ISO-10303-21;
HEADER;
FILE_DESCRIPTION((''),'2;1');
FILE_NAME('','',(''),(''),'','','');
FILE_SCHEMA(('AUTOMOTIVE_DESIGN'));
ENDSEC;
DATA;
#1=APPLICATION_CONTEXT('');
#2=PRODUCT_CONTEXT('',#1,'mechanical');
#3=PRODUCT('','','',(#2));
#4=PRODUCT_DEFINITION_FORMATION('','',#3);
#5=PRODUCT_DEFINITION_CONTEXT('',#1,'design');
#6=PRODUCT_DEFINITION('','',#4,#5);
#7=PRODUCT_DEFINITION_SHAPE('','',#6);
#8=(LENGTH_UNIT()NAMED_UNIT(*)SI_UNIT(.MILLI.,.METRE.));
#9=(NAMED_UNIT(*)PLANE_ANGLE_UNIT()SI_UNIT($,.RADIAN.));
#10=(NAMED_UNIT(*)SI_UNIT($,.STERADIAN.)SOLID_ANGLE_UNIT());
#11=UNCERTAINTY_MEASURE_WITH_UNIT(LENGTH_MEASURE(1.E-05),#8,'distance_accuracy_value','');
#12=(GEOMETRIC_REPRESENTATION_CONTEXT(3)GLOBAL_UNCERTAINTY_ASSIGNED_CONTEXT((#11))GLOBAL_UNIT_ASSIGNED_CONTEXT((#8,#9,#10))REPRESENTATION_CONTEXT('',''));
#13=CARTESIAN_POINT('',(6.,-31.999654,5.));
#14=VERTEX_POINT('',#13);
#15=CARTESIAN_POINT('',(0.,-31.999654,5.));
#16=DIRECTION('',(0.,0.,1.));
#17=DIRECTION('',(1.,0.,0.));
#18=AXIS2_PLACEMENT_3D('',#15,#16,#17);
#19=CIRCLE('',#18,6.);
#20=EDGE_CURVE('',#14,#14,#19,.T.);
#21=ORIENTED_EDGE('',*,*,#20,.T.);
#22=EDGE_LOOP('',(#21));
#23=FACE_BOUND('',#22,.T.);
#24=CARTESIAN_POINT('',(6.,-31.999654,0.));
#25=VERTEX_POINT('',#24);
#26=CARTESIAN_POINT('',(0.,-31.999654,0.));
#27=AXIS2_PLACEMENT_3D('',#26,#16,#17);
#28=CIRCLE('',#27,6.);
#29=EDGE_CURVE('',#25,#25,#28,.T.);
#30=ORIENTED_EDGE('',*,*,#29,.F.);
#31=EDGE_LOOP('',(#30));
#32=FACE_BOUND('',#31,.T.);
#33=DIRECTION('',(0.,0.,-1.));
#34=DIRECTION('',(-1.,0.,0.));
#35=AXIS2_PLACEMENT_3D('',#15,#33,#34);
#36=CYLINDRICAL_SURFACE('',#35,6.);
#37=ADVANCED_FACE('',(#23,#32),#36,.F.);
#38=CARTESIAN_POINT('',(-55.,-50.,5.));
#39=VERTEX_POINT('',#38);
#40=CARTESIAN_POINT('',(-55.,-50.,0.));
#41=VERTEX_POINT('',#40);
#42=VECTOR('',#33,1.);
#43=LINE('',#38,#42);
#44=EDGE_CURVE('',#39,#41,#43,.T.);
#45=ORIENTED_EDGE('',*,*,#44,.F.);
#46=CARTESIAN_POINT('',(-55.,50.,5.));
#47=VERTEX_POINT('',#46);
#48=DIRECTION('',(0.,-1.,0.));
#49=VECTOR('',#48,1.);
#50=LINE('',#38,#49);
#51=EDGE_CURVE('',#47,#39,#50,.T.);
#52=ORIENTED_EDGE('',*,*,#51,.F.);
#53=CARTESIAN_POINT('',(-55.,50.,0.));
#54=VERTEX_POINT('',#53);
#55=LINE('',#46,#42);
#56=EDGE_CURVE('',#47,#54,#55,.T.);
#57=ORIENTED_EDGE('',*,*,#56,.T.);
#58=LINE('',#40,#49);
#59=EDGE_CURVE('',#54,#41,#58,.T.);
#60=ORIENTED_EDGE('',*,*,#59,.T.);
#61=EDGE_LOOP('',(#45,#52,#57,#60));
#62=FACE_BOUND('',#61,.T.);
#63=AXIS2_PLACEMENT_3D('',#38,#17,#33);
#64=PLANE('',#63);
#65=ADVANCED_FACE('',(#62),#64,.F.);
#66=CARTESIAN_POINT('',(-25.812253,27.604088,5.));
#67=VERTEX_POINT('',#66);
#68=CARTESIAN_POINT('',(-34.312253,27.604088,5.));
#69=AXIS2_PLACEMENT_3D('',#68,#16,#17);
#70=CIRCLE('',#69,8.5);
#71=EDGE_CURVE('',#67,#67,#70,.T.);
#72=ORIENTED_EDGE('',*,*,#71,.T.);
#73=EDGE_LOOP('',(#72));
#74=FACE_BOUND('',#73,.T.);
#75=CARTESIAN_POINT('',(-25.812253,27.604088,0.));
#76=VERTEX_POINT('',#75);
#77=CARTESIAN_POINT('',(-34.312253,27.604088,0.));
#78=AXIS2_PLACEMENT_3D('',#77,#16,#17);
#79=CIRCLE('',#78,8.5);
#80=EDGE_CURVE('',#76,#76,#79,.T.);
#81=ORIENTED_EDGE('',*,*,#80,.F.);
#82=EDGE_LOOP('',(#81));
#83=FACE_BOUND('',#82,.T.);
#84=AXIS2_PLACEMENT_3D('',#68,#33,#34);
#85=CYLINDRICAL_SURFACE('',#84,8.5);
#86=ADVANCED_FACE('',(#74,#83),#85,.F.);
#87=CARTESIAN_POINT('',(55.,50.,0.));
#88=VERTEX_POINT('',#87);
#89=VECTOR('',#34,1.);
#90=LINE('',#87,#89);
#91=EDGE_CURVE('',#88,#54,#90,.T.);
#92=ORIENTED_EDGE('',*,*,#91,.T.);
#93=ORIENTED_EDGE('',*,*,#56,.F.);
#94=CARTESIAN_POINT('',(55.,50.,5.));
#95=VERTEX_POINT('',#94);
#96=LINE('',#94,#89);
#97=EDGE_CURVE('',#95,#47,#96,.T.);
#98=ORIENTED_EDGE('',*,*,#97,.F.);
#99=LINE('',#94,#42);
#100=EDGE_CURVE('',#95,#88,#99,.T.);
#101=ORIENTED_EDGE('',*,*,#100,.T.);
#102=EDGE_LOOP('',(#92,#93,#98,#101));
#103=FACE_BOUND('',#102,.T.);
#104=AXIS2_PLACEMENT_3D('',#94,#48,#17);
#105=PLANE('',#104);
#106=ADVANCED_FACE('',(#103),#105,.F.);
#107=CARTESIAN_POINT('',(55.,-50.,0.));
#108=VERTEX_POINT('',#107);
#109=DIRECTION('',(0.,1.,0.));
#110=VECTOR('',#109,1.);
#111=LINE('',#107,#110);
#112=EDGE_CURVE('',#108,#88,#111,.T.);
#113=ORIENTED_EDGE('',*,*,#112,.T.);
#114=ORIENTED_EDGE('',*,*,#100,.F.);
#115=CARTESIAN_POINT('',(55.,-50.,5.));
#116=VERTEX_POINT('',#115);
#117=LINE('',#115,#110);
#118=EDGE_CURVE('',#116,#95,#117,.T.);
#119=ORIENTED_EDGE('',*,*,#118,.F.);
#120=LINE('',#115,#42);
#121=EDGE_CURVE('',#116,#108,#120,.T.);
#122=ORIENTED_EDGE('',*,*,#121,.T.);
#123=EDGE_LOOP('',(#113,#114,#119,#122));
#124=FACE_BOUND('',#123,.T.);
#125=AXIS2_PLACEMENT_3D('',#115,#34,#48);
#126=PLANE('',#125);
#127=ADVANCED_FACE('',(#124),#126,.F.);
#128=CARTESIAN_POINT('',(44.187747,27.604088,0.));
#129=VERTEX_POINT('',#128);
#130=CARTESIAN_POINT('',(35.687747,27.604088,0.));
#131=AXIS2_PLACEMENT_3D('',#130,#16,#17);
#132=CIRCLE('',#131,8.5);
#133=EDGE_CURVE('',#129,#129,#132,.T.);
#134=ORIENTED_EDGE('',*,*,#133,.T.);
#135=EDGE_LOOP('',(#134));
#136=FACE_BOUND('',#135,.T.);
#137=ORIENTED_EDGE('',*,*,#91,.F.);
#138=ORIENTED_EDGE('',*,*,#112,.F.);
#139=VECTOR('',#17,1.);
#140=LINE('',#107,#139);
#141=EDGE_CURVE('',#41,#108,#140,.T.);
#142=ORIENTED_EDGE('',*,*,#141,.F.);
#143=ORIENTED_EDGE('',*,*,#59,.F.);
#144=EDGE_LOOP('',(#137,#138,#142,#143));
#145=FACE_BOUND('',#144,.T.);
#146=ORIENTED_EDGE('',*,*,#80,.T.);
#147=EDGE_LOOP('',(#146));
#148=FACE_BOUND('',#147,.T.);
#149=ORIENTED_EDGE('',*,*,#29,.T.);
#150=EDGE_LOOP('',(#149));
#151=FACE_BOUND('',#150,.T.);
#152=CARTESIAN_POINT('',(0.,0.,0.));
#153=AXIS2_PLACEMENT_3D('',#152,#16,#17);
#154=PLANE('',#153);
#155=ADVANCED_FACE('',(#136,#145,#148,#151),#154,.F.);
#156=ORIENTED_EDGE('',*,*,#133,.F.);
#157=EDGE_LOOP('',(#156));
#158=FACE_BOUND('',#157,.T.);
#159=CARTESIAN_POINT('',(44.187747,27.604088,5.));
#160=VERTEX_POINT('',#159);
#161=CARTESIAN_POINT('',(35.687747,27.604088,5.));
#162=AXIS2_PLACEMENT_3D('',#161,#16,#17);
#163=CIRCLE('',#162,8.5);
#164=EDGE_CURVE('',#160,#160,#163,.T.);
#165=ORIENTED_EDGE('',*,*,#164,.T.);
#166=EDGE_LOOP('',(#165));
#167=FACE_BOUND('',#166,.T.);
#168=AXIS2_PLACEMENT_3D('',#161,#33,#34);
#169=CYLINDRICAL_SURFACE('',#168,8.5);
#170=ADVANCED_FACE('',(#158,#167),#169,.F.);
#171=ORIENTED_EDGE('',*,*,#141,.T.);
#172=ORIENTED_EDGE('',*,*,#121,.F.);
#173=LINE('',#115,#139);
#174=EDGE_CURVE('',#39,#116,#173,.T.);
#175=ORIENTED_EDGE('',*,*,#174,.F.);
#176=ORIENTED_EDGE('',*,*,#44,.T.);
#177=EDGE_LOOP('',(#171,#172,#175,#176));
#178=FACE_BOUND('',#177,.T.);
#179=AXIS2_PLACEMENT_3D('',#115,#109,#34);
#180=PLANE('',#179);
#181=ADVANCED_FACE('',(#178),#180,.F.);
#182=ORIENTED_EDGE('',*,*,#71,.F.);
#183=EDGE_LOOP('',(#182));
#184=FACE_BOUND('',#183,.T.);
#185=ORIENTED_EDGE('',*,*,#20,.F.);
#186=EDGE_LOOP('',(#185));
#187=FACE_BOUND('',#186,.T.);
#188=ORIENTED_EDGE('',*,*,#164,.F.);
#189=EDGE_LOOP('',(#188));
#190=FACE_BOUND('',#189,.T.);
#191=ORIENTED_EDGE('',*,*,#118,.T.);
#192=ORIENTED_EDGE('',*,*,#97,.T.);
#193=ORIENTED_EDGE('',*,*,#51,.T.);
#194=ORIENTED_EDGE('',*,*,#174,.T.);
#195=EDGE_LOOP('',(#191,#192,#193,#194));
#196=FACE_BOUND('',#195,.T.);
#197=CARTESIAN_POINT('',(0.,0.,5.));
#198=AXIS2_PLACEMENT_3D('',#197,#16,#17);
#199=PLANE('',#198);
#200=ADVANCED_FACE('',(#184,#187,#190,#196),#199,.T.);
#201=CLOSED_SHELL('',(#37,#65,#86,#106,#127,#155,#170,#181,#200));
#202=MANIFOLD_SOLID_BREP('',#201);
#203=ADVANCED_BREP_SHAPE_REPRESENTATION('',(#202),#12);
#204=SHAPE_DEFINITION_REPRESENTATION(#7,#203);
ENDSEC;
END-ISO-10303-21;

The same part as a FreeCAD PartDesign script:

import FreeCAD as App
import Part
import Sketcher

V = App.Vector

doc = App.newDocument("Part")
body = doc.addObject("PartDesign::Body", "Body")

# Sketch on XY plane
sketch1 = doc.addObject("Sketcher::SketchObject", "Sketch")
body.addObject(sketch1)
sketch1.AttachmentSupport = (doc.XY_Plane, [""])
sketch1.MapMode = "FlatFace"
sketch1.addGeometry([
    Part.LineSegment(V(-55, 50, 0), V(-55, -50, 0)),  # 0
    Part.LineSegment(V(-55, -50, 0), V(55, -50, 0)),  # 1
    Part.LineSegment(V(55, -50, 0), V(55, 50, 0)),  # 2
    Part.LineSegment(V(55, 50, 0), V(-55, 50, 0)),  # 3
    Part.Circle(V(0, -32, 0), V(0, 0, 1), 6),  # 4
    Part.Circle(V(-34, 28, 0), V(0, 0, 1), 8),  # 5
    Part.Circle(V(36, 28, 0), V(0, 0, 1), 8),  # 6
], False)
sketch1.addConstraint([
    Sketcher.Constraint("Coincident", 0, 2, 1, 1),
    Sketcher.Constraint("Coincident", 1, 2, 2, 1),
    Sketcher.Constraint("Coincident", 2, 2, 3, 1),
    Sketcher.Constraint("Coincident", 3, 2, 0, 1),
    Sketcher.Constraint("Vertical", 0),
    Sketcher.Constraint("Horizontal", 1),
    Sketcher.Constraint("Vertical", 2),
    Sketcher.Constraint("Horizontal", 3),
    Sketcher.Constraint("Equal", 5, 6),
    Sketcher.Constraint("Symmetric", 0, 2, 2, 2, -1, 1),
    Sketcher.Constraint("PointOnObject", 4, 3, -2),
    Sketcher.Constraint("Horizontal", 5, 3, 6, 3),
    Sketcher.Constraint("Diameter", 4, 12.0),
    Sketcher.Constraint("Diameter", 5, 17.0),
    Sketcher.Constraint("DistanceX", 1, 1, 1, 2, 110.0),
    Sketcher.Constraint("DistanceY", 0, 2, 0, 1, 100.0),
    Sketcher.Constraint("DistanceX", 5, 3, 6, 3, 70.0),
    Sketcher.Constraint("DistanceY", 4, 3, 5, 3, 59.603742),
    Sketcher.Constraint("DistanceY", 4, 3, -1, 1, 31.999654),
    Sketcher.Constraint("DistanceX", 5, 3, -1, 1, 34.312253),
])
pad1 = doc.addObject("PartDesign::Pad", "Pad")
body.addObject(pad1)
pad1.Profile = sketch1
pad1.Length = 5

doc.recompute()
